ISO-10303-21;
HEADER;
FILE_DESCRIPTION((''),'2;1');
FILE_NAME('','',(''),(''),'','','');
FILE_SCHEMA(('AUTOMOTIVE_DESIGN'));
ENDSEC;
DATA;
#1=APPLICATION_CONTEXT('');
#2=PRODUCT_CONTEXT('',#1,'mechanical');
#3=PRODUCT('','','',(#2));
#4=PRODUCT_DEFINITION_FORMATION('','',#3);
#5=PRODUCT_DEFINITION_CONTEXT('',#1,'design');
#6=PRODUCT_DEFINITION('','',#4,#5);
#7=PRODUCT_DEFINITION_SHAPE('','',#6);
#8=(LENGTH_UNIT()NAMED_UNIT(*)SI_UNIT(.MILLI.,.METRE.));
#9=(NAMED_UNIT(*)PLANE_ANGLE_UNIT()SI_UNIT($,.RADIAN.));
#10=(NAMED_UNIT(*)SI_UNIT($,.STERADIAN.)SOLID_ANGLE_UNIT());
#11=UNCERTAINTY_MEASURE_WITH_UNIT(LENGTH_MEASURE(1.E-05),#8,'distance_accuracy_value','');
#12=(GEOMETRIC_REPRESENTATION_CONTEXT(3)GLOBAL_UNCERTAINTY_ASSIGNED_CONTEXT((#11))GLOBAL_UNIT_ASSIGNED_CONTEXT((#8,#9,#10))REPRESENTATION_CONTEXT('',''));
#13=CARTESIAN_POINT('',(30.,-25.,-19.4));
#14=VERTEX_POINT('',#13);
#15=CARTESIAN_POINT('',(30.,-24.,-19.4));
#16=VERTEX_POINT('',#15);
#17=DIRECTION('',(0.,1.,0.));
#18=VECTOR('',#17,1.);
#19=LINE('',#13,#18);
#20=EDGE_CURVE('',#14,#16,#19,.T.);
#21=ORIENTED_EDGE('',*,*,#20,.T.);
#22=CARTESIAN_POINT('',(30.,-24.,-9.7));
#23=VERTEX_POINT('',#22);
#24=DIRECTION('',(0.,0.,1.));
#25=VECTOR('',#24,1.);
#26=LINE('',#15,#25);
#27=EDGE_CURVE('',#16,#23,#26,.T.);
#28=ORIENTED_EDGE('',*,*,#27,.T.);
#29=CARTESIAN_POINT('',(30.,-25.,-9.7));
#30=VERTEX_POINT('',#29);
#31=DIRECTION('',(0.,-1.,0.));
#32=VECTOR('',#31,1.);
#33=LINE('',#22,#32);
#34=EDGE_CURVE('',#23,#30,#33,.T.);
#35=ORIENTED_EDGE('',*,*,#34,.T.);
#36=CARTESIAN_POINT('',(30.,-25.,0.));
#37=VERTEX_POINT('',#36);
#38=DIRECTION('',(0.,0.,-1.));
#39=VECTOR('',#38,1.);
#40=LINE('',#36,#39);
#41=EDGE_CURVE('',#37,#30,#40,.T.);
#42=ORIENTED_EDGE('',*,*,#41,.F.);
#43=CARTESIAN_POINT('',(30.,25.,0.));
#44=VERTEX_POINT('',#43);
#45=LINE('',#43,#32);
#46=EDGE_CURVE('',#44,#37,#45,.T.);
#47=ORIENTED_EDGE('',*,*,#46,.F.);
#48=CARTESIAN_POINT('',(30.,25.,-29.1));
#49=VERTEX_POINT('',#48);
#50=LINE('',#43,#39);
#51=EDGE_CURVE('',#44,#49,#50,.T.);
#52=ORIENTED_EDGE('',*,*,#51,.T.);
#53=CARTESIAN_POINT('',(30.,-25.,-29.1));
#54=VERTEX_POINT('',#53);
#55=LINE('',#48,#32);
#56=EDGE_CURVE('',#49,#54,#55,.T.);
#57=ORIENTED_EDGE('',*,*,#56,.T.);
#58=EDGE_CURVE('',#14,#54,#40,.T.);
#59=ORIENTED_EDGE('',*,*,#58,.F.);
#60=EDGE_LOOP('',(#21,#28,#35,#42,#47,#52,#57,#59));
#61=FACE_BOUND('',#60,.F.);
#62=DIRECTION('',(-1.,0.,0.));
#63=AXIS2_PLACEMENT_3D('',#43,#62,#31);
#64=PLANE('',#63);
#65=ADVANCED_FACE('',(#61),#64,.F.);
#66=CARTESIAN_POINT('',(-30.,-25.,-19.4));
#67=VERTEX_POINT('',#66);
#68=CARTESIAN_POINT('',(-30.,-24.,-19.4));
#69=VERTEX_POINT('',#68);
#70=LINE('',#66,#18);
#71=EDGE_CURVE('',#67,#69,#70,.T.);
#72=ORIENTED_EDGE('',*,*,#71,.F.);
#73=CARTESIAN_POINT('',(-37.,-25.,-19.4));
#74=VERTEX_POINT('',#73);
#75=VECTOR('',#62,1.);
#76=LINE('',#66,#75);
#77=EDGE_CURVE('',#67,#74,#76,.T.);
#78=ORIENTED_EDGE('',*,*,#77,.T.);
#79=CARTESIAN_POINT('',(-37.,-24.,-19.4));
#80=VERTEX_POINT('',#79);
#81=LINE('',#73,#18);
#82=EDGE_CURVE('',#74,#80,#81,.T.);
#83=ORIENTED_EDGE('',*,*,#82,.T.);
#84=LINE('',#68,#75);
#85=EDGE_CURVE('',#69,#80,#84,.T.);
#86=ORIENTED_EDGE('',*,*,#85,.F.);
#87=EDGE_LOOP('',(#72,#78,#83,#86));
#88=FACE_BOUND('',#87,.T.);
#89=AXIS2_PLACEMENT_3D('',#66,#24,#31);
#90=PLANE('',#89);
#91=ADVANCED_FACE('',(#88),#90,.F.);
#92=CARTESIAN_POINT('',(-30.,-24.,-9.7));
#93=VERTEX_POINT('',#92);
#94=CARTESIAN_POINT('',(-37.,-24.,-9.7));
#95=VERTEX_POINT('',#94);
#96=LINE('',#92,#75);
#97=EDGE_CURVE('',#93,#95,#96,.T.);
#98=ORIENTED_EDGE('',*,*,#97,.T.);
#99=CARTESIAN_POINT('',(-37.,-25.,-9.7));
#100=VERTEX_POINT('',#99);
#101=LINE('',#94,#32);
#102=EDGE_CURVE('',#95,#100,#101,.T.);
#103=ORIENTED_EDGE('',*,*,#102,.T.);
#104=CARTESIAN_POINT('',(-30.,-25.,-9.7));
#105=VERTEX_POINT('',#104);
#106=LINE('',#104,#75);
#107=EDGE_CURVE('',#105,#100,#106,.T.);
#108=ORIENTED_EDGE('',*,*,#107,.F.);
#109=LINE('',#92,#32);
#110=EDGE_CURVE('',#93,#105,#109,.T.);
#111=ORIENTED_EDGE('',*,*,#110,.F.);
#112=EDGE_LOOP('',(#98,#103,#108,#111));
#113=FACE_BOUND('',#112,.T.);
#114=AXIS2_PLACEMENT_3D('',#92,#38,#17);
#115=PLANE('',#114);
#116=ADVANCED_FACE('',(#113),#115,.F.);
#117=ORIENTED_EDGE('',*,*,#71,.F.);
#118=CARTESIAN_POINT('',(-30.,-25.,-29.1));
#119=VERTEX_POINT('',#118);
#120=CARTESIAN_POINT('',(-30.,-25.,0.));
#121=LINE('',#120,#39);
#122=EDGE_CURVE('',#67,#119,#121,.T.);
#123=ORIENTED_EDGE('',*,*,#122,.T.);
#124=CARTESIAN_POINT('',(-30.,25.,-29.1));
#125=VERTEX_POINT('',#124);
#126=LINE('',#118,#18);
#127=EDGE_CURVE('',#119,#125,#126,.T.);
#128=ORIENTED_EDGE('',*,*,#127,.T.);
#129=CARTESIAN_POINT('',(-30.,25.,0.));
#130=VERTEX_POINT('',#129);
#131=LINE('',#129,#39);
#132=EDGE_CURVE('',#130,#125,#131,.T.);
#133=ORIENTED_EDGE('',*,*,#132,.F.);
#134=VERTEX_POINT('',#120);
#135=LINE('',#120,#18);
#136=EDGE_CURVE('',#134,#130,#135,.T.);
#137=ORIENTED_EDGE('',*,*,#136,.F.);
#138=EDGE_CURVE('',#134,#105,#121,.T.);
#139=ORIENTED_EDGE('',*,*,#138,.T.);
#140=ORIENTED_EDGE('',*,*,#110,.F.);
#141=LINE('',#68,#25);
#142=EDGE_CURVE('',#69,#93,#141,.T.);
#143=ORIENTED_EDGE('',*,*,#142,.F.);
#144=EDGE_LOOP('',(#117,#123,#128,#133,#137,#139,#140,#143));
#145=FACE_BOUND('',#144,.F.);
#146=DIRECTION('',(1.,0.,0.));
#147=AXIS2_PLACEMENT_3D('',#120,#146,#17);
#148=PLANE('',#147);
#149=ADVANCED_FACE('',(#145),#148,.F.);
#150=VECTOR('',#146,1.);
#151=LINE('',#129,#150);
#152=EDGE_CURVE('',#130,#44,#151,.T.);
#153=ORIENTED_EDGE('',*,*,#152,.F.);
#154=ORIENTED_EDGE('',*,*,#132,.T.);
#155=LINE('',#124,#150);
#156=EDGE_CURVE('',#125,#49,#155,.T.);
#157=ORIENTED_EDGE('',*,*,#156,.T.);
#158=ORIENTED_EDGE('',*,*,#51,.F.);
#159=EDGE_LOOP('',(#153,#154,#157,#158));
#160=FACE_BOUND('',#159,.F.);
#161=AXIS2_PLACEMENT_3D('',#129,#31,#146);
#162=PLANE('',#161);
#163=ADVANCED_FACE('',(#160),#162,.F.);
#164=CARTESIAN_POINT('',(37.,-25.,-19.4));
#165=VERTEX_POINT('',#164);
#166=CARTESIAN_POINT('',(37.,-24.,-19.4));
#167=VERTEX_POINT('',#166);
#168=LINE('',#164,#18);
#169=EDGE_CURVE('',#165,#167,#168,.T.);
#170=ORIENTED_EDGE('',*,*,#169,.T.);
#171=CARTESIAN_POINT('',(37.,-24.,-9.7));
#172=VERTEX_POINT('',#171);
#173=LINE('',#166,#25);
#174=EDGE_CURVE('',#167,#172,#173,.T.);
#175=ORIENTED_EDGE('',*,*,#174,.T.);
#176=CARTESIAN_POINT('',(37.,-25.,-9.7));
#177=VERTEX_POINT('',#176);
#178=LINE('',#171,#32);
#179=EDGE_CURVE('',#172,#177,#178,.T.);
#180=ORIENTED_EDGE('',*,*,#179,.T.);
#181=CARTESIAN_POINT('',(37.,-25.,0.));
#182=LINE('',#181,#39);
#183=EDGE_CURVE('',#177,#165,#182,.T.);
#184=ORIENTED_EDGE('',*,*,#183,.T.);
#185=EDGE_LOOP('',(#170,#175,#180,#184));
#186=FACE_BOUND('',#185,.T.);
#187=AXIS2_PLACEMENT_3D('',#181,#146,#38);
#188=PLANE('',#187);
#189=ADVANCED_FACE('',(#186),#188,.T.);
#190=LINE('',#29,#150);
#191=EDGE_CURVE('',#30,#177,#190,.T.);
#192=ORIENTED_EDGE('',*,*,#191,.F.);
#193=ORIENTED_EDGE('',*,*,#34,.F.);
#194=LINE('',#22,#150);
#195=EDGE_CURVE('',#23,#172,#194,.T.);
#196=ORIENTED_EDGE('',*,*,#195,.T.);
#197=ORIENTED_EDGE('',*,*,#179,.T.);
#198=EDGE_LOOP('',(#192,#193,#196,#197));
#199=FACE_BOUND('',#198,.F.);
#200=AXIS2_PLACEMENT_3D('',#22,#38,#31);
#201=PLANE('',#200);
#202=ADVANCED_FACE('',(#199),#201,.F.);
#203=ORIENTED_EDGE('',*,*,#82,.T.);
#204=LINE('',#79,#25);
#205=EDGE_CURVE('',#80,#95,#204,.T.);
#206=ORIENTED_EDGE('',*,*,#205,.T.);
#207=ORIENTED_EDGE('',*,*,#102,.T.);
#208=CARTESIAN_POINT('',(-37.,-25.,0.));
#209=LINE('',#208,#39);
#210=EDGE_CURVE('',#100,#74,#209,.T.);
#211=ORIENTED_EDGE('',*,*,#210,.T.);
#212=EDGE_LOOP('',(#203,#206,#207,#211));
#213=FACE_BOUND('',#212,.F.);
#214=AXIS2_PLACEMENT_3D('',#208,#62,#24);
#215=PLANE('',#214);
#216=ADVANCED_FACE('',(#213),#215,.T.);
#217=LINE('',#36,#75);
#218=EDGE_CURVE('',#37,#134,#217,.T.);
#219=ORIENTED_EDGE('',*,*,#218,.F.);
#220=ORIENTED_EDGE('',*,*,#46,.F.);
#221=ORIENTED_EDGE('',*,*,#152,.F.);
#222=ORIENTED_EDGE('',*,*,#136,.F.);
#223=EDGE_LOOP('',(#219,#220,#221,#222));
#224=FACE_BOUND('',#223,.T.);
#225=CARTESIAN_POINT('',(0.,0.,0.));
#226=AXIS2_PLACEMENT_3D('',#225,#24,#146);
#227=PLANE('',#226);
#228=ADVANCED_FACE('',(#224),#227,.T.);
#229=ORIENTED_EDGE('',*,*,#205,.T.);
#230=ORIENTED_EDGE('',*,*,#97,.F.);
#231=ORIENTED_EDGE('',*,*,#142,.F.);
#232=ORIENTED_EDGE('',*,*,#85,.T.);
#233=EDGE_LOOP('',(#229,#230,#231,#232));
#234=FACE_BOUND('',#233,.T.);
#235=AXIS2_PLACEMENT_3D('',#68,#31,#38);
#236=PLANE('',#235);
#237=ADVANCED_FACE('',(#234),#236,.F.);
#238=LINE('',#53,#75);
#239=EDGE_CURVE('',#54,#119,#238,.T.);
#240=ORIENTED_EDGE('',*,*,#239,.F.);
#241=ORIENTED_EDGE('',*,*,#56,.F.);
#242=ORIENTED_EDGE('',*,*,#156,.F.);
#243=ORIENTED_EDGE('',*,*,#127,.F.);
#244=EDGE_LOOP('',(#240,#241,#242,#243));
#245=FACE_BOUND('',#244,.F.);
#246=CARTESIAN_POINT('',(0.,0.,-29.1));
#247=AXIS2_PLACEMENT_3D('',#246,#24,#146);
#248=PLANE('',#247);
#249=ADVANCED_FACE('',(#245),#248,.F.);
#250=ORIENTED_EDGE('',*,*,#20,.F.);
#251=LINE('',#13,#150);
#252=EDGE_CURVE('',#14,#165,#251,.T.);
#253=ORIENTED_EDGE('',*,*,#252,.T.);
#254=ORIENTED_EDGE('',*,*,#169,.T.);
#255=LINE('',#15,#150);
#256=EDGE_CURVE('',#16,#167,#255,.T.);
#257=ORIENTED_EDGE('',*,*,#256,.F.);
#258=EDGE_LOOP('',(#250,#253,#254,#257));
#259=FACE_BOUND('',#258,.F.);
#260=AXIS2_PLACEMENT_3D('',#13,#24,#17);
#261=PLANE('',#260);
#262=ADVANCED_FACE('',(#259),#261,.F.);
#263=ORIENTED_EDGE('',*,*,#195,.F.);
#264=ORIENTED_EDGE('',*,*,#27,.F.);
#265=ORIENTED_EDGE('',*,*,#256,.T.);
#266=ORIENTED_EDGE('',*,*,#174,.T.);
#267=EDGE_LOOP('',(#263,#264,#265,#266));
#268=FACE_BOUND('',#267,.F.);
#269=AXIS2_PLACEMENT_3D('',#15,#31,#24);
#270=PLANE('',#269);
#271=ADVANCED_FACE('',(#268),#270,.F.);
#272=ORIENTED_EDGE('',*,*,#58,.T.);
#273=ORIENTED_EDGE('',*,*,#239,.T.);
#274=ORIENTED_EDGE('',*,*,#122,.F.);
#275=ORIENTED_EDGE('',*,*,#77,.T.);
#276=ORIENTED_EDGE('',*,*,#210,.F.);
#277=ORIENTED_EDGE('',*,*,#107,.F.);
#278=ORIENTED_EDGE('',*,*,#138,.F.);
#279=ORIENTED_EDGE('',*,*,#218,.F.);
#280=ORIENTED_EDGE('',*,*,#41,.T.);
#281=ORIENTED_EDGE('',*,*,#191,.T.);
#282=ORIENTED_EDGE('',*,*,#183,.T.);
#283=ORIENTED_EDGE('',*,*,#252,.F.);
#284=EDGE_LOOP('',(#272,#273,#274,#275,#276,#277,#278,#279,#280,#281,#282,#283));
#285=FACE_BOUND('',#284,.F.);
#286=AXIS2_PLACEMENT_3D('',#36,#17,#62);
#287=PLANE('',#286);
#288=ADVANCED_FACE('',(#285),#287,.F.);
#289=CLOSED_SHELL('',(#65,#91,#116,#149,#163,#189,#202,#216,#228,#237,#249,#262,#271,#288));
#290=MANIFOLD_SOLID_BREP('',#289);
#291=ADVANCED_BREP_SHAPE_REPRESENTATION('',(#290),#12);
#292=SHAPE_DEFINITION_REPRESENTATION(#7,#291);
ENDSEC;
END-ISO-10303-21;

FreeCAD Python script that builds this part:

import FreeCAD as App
import Part
import Sketcher
from FreeCAD import Vector

doc = App.newDocument("Part")
body = doc.addObject("PartDesign::Body", "Body")

# Sketch on XY plane
sketch1 = doc.addObject("Sketcher::SketchObject", "Sketch")
body.addObject(sketch1)
sketch1.AttachmentSupport = (doc.XY_Plane, [""])
sketch1.MapMode = "FlatFace"
sketch1.addGeometry([
    Part.LineSegment(Vector(-30, -25, 0), Vector(30, -25, 0)),
    Part.LineSegment(Vector(30, -25, 0), Vector(30, 25, 0)),
    Part.LineSegment(Vector(30, 25, 0), Vector(-30, 25, 0)),
    Part.LineSegment(Vector(-30, 25, 0), Vector(-30, -25, 0)),
], False)
sketch1.addConstraint([
    Sketcher.Constraint("Coincident", 0, 2, 1, 1),
    Sketcher.Constraint("Coincident", 1, 2, 2, 1),
    Sketcher.Constraint("Coincident", 2, 2, 3, 1),
    Sketcher.Constraint("Coincident", 3, 2, 0, 1),
    Sketcher.Constraint("Horizontal", 0),
    Sketcher.Constraint("Vertical", 1),
    Sketcher.Constraint("Horizontal", 2),
    Sketcher.Constraint("Vertical", 3),
    Sketcher.Constraint("Symmetric", 0, 2, 2, 2, -1, 1),
    Sketcher.Constraint("DistanceX", 0, 1, 0, 2, 60.0),
    Sketcher.Constraint("DistanceY", 1, 1, 1, 2, 50.0),
])
pad1 = doc.addObject("PartDesign::Pad", "Pad")
body.addObject(pad1)
pad1.Profile = sketch1
pad1.Length = 29.1
pad1.Reversed = True

# Sketch on YZ plane
sketch2 = doc.addObject("Sketcher::SketchObject", "Sketch001")
body.addObject(sketch2)
sketch2.AttachmentSupport = (doc.YZ_Plane, [""])
sketch2.MapMode = "FlatFace"
sketch2.AttachmentOffset = App.Placement(Vector(0, 0, 30), App.Rotation())
sketch2.addGeometry([
    Part.LineSegment(Vector(-24, -9.7, 0), Vector(-25, -9.7, 0)),
    Part.LineSegment(Vector(-25, -9.7, 0), Vector(-25, -19.4, 0)),
    Part.LineSegment(Vector(-25, -19.4, 0), Vector(-24, -19.4, 0)),
    Part.LineSegment(Vector(-24, -19.4, 0), Vector(-24, -9.7, 0)),
], False)
sketch2.addConstraint([
    Sketcher.Constraint("Coincident", 0, 2, 1, 1),
    Sketcher.Constraint("Coincident", 1, 2, 2, 1),
    Sketcher.Constraint("Coincident", 2, 2, 3, 1),
    Sketcher.Constraint("Coincident", 3, 2, 0, 1),
    Sketcher.Constraint("Horizontal", 0),
    Sketcher.Constraint("Vertical", 1),
    Sketcher.Constraint("Horizontal", 2),
    Sketcher.Constraint("Vertical", 3),
    Sketcher.Constraint("DistanceX", 0, 2, 0, 1, 1.0),
    Sketcher.Constraint("DistanceY", 1, 2, 1, 1, 9.7),
    Sketcher.Constraint("DistanceX", 0, 2, -1, 1, 25.0),
    Sketcher.Constraint("DistanceY", 0, 2, -1, 1, 9.7),
])
pad2 = doc.addObject("PartDesign::Pad", "Pad001")
body.addObject(pad2)
pad2.Profile = sketch2
pad2.Length = 7
doc.recompute()

mirrored = doc.addObject("PartDesign::Mirrored", "Mirrored")
body.addObject(mirrored)
mirrored.Originals = [pad2]
mirrored.MirrorPlane = (doc.YZ_Plane, [""])
body.Tip = mirrored

doc.recompute()
